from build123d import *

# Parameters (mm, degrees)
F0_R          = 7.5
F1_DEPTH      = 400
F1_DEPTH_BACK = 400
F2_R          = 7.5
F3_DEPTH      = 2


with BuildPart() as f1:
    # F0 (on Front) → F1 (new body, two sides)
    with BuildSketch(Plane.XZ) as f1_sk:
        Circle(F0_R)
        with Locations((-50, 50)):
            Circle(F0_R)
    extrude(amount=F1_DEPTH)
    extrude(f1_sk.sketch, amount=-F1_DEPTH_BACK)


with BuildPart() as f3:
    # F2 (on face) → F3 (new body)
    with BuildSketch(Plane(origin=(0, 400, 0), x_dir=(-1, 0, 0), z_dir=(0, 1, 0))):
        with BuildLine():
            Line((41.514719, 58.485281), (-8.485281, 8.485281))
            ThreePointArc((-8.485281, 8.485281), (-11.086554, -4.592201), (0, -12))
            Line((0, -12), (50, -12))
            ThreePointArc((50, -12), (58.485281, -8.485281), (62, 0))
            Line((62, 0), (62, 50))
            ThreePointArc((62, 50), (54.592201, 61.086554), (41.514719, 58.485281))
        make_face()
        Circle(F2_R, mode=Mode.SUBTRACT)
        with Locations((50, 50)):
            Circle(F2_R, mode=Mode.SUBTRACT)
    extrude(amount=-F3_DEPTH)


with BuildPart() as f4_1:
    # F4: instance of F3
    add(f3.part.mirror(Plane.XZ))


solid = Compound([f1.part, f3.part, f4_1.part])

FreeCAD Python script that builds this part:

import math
import FreeCAD as App
import Part
import Sketcher

doc = App.newDocument("Part")
body = doc.addObject("PartDesign::Body", "Body")
body.AllowCompound = True

# Sketch on XZ plane
sketch1 = doc.addObject("Sketcher::SketchObject", "Sketch")
body.addObject(sketch1)
sketch1.AttachmentSupport = (doc.XZ_Plane, [""])
sketch1.MapMode = "FlatFace"
sketch1.addGeometry(Part.Circle(App.Vector(0, 0, 0), App.Vector(0, 0, 1), 8), False)
sketch1.addGeometry(Part.Circle(App.Vector(-50, 50, 0), App.Vector(0, 0, 1), 8), False)
sketch1.addConstraint(Sketcher.Constraint("Coincident", 0, 3, -1, 1))
sketch1.addConstraint(Sketcher.Constraint("Equal", 0, 1))
sketch1.addConstraint(Sketcher.Constraint("Diameter", 0, 15.0))
sketch1.addConstraint(Sketcher.Constraint("DistanceX", 1, 3, -1, 1, 50.0))
sketch1.addConstraint(Sketcher.Constraint("DistanceY", -1, 1, 1, 3, 50.0))
pad1 = doc.addObject("PartDesign::Pad", "Pad")
body.addObject(pad1)
pad1.Profile = sketch1
pad1.Type = "TwoLengths"
pad1.Length = 400
pad1.Length2 = 400
body2 = doc.addObject("PartDesign::Body", "Body001")

# Sketch on XZ plane
sketch2 = doc.addObject("Sketcher::SketchObject", "Sketch001")
body2.addObject(sketch2)
sketch2.AttachmentSupport = (doc.getObject("XZ_Plane001"), [""])
sketch2.MapMode = "FlatFace"
sketch2.AttachmentOffset = App.Placement(App.Vector(0, 0, -400), App.Rotation())
sketch2.addGeometry(Part.LineSegment(App.Vector(-42, 58, 0), App.Vector(8, 8, 0)), False)
sketch2.addGeometry(Part.ArcOfCircle(Part.Circle(App.Vector(0, 0, 0), App.Vector(0, 0, 1), 12), math.radians(-90), math.radians(45)), False)
sketch2.addGeometry(Part.LineSegment(App.Vector(0, -12, 0), App.Vector(-50, -12, 0)), False)
sketch2.addGeometry(Part.ArcOfCircle(Part.Circle(App.Vector(-50, 0, 0), App.Vector(0, 0, 1), 12), math.radians(-180), math.radians(-90)), False)
sketch2.addGeometry(Part.LineSegment(App.Vector(-62, 0, 0), App.Vector(-62, 50, 0)), False)
sketch2.addGeometry(Part.ArcOfCircle(Part.Circle(App.Vector(-50, 50, 0), App.Vector(0, 0, 1), 12), math.radians(45), math.radians(180)), False)
sketch2.addGeometry(Part.Circle(App.Vector(0, 0, 0), App.Vector(0, 0, 1), 8), False)
sketch2.addGeometry(Part.Circle(App.Vector(-50, 50, 0), App.Vector(0, 0, 1), 8), False)
sketch2.addConstraint(Sketcher.Constraint("Tangent", 0, 2, 1, 2))
sketch2.addConstraint(Sketcher.Constraint("Tangent", 1, 1, 2, 1))
sketch2.addConstraint(Sketcher.Constraint("Tangent", 2, 2, 3, 2))
sketch2.addConstraint(Sketcher.Constraint("Tangent", 3, 1, 4, 1))
sketch2.addConstraint(Sketcher.Constraint("Tangent", 4, 2, 5, 2))
sketch2.addConstraint(Sketcher.Constraint("Tangent", 5, 1, 0, 1))
sketch2.addConstraint(Sketcher.Constraint("Horizontal", 2))
sketch2.addConstraint(Sketcher.Constraint("Vertical", 4))
sketch2.addConstraint(Sketcher.Constraint("Coincident", 1, 3, -1, 1))
sketch2.addConstraint(Sketcher.Constraint("Coincident", 6, 3, -1, 1))
sketch2.addConstraint(Sketcher.Constraint("Coincident", 7, 3, 5, 3))
sketch2.addConstraint(Sketcher.Constraint("Equal", 1, 3))
sketch2.addConstraint(Sketcher.Constraint("Equal", 3, 5))
sketch2.addConstraint(Sketcher.Constraint("Equal", 6, 7))
sketch2.addConstraint(Sketcher.Constraint("Equal", 2, 4))
sketch2.addConstraint(Sketcher.Constraint("Diameter", 6, 15.0))
sketch2.addConstraint(Sketcher.Constraint("Radius", 1, 12.0))
sketch2.addConstraint(Sketcher.Constraint("DistanceX", 2, 2, 2, 1, 50.0))
pad2 = doc.addObject("PartDesign::Pad", "Pad001")
body2.addObject(pad2)
pad2.Profile = sketch2
pad2.Length = 2
body3 = doc.addObject("PartDesign::Body", "Body002")
doc.recompute()

mirroring = doc.addObject("Part::Mirroring", "Mirroring")
mirroring.Source = body2
mirroring.Base = App.Vector(0, 0, 0)
mirroring.Normal = App.Vector(0, -1, 0)
body3.BaseFeature = mirroring
doc.recompute()
mirroring.Visibility = False

doc.recompute()
